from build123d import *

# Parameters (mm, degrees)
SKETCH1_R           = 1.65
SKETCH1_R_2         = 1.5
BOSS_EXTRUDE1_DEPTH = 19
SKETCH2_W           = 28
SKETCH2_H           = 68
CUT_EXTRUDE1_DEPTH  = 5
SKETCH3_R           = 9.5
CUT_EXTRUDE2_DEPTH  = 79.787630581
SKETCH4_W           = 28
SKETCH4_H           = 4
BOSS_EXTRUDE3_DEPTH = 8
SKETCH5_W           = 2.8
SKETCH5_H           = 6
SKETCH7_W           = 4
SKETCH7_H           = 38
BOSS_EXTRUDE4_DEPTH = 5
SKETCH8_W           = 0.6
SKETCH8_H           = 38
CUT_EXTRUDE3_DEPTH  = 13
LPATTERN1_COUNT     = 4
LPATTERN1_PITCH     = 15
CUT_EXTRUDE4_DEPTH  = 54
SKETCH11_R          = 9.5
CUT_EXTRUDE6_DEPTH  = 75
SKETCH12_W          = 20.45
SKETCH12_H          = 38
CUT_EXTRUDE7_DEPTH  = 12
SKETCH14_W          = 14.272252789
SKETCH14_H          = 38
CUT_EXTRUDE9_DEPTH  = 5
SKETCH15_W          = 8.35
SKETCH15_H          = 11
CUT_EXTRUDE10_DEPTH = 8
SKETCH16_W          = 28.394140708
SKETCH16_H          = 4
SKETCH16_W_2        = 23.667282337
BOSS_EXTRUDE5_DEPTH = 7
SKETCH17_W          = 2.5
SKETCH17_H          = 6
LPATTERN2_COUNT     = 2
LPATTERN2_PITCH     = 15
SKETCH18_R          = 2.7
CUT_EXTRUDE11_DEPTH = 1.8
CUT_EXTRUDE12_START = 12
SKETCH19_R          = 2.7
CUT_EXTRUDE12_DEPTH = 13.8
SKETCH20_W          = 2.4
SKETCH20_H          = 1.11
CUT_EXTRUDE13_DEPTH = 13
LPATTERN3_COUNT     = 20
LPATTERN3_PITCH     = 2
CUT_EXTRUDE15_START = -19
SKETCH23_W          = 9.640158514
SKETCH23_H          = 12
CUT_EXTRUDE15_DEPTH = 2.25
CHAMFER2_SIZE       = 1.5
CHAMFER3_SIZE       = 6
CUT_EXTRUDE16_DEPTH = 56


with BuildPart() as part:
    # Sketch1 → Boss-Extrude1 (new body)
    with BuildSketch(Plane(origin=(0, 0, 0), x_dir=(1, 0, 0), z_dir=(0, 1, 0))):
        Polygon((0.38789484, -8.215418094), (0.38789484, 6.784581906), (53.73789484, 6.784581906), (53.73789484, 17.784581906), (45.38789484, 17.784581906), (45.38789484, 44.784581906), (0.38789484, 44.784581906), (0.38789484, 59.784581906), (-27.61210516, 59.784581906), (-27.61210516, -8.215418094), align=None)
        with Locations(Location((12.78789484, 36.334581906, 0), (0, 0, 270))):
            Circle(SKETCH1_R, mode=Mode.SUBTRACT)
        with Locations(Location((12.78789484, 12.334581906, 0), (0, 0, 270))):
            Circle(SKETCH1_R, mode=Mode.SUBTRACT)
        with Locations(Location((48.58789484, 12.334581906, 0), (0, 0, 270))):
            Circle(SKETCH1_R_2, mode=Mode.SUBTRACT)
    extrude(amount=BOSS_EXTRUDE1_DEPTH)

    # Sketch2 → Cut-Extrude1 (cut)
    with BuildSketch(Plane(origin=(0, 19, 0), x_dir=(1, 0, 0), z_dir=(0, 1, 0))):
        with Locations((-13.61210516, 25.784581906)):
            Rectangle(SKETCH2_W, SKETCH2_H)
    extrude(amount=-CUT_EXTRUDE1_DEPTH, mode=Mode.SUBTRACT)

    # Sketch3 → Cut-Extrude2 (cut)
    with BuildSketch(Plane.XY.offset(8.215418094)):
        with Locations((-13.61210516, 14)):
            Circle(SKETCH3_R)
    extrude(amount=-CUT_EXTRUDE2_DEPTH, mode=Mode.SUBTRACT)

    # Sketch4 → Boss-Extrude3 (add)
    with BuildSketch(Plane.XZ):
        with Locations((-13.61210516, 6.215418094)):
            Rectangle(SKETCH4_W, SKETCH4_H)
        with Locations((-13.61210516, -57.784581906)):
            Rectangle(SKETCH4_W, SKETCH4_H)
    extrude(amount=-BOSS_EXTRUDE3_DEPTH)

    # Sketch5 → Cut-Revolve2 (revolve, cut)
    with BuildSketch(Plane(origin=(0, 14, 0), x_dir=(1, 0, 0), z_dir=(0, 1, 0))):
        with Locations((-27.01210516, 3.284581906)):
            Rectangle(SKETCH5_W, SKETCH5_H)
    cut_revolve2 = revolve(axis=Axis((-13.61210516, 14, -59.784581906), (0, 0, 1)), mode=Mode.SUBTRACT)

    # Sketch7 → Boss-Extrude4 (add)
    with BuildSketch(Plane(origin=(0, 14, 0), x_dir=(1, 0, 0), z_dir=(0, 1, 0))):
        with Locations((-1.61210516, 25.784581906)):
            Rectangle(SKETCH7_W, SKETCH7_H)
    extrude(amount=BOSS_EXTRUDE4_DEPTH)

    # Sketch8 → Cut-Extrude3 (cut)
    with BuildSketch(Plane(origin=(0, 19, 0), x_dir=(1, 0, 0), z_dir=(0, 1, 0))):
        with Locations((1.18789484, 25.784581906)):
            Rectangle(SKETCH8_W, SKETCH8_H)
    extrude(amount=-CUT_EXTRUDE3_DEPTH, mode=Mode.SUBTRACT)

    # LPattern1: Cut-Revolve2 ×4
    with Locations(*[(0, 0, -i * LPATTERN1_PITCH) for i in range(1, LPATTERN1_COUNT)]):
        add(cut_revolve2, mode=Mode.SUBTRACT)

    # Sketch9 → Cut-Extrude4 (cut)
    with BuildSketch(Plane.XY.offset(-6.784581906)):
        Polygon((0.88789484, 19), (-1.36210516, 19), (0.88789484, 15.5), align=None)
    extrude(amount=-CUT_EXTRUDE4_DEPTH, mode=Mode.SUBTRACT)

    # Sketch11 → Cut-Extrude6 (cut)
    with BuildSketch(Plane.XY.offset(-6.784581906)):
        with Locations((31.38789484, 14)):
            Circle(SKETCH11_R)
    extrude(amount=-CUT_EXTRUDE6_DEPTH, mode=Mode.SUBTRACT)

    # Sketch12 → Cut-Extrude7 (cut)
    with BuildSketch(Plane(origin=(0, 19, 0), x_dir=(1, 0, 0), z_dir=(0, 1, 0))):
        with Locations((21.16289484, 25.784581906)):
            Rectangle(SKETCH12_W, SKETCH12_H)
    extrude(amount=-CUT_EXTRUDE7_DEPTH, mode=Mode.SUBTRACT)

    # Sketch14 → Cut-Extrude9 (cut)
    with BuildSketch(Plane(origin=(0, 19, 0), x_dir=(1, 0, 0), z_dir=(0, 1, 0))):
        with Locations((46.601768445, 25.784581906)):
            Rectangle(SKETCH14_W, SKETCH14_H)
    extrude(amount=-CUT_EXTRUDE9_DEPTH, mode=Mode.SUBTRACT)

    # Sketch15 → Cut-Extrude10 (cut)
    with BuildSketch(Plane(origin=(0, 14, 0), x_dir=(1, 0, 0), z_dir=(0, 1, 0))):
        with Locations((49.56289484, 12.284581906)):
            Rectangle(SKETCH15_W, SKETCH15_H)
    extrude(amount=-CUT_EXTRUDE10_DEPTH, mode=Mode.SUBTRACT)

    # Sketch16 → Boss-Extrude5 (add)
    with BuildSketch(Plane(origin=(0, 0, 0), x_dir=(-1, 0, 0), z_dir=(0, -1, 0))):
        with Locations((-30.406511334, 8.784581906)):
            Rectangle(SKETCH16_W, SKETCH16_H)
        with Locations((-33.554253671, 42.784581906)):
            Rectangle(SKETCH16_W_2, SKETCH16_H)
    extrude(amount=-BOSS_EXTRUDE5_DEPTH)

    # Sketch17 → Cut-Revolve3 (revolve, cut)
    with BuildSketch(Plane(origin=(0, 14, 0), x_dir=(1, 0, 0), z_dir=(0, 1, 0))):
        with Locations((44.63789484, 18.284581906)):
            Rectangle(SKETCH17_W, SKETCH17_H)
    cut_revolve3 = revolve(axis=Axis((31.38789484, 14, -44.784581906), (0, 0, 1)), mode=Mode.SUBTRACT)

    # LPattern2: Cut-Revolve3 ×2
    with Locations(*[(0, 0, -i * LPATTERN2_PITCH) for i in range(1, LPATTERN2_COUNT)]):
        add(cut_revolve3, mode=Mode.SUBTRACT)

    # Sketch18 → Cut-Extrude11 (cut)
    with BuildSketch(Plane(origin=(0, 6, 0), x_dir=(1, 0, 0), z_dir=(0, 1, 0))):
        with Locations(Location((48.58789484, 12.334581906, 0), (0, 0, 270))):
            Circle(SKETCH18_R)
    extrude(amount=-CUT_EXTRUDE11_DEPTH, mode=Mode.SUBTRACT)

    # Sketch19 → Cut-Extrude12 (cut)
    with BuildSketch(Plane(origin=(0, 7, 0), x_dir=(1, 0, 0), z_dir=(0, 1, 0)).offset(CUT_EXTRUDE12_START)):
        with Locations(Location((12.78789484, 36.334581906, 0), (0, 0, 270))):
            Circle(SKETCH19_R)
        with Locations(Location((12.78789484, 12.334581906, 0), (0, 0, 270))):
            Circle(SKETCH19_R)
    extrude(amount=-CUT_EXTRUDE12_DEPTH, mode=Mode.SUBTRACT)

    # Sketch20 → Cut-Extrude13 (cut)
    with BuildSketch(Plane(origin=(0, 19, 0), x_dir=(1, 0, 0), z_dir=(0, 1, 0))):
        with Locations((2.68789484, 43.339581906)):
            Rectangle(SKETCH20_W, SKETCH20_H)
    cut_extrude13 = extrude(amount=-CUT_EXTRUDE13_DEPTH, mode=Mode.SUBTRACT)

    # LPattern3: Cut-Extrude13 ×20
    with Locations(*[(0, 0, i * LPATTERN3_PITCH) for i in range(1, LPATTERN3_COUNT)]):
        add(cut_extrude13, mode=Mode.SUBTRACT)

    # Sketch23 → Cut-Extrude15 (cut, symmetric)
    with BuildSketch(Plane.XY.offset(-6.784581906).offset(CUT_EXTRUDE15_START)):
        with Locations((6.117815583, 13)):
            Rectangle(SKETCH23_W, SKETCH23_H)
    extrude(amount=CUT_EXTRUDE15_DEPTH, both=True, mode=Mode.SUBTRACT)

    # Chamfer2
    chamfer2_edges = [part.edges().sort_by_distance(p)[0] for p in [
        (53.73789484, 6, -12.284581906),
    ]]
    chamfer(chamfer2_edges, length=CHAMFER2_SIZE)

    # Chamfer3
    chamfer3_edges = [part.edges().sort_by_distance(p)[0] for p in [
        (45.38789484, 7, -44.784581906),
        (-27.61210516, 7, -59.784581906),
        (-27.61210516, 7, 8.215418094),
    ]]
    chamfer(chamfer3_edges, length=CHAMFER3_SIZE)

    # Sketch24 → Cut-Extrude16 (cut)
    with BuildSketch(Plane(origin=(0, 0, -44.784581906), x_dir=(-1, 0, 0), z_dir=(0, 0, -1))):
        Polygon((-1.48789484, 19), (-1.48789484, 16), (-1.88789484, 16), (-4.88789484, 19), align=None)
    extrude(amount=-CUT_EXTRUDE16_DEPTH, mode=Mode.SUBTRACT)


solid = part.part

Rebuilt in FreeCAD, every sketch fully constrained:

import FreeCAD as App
import Part
import Sketcher
from FreeCAD import Vector
Q = App.Units.Quantity


def edges_at(feature, points):
    """Names of the edges that pass closest to the given points."""
    edges = feature.Shape.Edges
    near = lambda p: min(range(len(edges)), key=lambda i: edges[i].distToShape(Part.Vertex(*p))[0])
    return sorted({f"Edge{near(p) + 1}" for p in points})


def add_polygon(sketch, points):
    """Adds a closed chain of lines whose ends are joined by coincident constraints."""
    first, n = sketch.GeometryCount, len(points)
    for a, b in zip(points, points[1:] + points[:1]):
        sketch.addGeometry(Part.LineSegment(App.Vector(*a, 0), App.Vector(*b, 0)), False)
    for i in range(n):
        sketch.addConstraint(Sketcher.Constraint("Coincident", first + i, 2, first + (i + 1) % n, 1))

doc = App.newDocument("Part")
body = doc.addObject("PartDesign::Body", "Body")

# Sketch on XZ plane
sketch1 = doc.addObject("Sketcher::SketchObject", "Sketch")
body.addObject(sketch1)
sketch1.AttachmentSupport = (doc.XZ_Plane, [""])
sketch1.MapMode = "FlatFace"
add_polygon(sketch1, [(0.4, 8.2), (0.4, -6.8), (53.7, -6.8), (53.7, -17.8), (45.4, -17.8), (45.4, -44.8), (0.4, -44.8), (0.4, -59.8), (-27.6, -59.8), (-27.6, 8.2)])  # lines 0-9
sketch1.addGeometry(Part.Circle(Vector(12.8, -12.3, 0), Vector(0, 0, 1), 1.6), False)  # 10
sketch1.addGeometry(Part.Circle(Vector(48.6, -12.3, 0), Vector(0, 0, 1), 1.5), False)  # 11
sketch1.addGeometry(Part.Circle(Vector(12.8, -36.3, 0), Vector(0, 0, 1), 1.6), False)  # 12
sketch1.addConstraint([
    Sketcher.Constraint("Vertical", 0),
    Sketcher.Constraint("Horizontal", 1),
    Sketcher.Constraint("Vertical", 2),
    Sketcher.Constraint("Horizontal", 3),
    Sketcher.Constraint("Vertical", 4),
    Sketcher.Constraint("Horizontal", 5),
    Sketcher.Constraint("Vertical", 6),
    Sketcher.Constraint("Horizontal", 7),
    Sketcher.Constraint("Vertical", 8),
    Sketcher.Constraint("Horizontal", 9),
    Sketcher.Constraint("Equal", 10, 12),
    Sketcher.Constraint("Horizontal", 10, 3, 11, 3),
    Sketcher.Constraint("Vertical", 10, 3, 12, 3),
    Sketcher.Constraint("Vertical", 0, 2, 5, 2),
    Sketcher.Constraint("Equal", 0, 6),
    Sketcher.Constraint("Diameter", 11, Q("3 mm")),
    Sketcher.Constraint("Diameter", 10, Q("3.3 mm")),
    Sketcher.Constraint("DistanceX", 5, 2, 5, 1, Q("45 mm")),
    Sketcher.Constraint("DistanceX", 7, 2, 7, 1, Q("28 mm")),
    Sketcher.Constraint("DistanceY", 0, 2, 0, 1, Q("15 mm")),
    Sketcher.Constraint("DistanceY", 2, 2, 2, 1, Q("11 mm")),
    Sketcher.Constraint("DistanceY", 4, 2, 4, 1, Q("27 mm")),
    Sketcher.Constraint("DistanceY", 12, 3, 10, 3, Q("24 mm")),
    Sketcher.Constraint("DistanceX", 1, 1, 1, 2, Q("53.35 mm")),
    Sketcher.Constraint("DistanceX", 10, 3, 11, 3, Q("35.8 mm")),
    Sketcher.Constraint("DistanceX", 0, 2, 10, 3, Q("12.4 mm")),
    Sketcher.Constraint("DistanceY", 10, 3, 0, 2, Q("5.55 mm")),
    Sketcher.Constraint("DistanceY", 10, 3, -1, 1, Q("12.334582 mm")),
    Sketcher.Constraint("DistanceX", -1, 1, 10, 3, Q("12.787895 mm")),
])
pad1 = doc.addObject("PartDesign::Pad", "Pad")
body.addObject(pad1)
pad1.Profile = sketch1
pad1.Length = 19
pad1.Reversed = True

# Sketch on XZ plane
sketch2 = doc.addObject("Sketcher::SketchObject", "Sketch001")
body.addObject(sketch2)
sketch2.AttachmentSupport = (doc.XZ_Plane, [""])
sketch2.MapMode = "FlatFace"
sketch2.AttachmentOffset = App.Placement(Vector(0, 0, -19), App.Rotation())
add_polygon(sketch2, [(-28, -60), (-28, 8), (0, 8), (0, -60)])  # lines 0-3
sketch2.addConstraint([
    Sketcher.Constraint("Vertical", 0),
    Sketcher.Constraint("Horizontal", 1),
    Sketcher.Constraint("Vertical", 2),
    Sketcher.Constraint("Horizontal", 3),
    Sketcher.Constraint("DistanceX", 1, 1, 1, 2, Q("28 mm")),
    Sketcher.Constraint("DistanceY", 0, 1, 0, 2, Q("68 mm")),
    Sketcher.Constraint("DistanceY", -1, 1, 0, 2, Q("8.215418 mm")),
    Sketcher.Constraint("DistanceX", 0, 2, -1, 1, Q("27.612105 mm")),
])
pocket1 = doc.addObject("PartDesign::Pocket", "Pocket")
body.addObject(pocket1)
pocket1.Profile = sketch2
pocket1.Length = 5
pocket1.Reversed = True

# Sketch on XY plane
sketch3 = doc.addObject("Sketcher::SketchObject", "Sketch002")
body.addObject(sketch3)
sketch3.AttachmentSupport = (doc.XY_Plane, [""])
sketch3.MapMode = "FlatFace"
sketch3.AttachmentOffset = App.Placement(Vector(0, 0, 8.215418), App.Rotation())
sketch3.addGeometry(Part.Circle(Vector(-14, 14, 0), Vector(0, 0, 1), 10), False)
sketch3.addConstraint([
    Sketcher.Constraint("Diameter", 0, Q("19 mm")),
    Sketcher.Constraint("DistanceY", -1, 1, 0, 3, Q("14 mm")),
    Sketcher.Constraint("DistanceX", 0, 3, -1, 1, Q("13.612105 mm")),
])
pocket2 = doc.addObject("PartDesign::Pocket", "Pocket001")
body.addObject(pocket2)
pocket2.Profile = sketch3
pocket2.Length = 79.787631

# Sketch on XZ plane
sketch4 = doc.addObject("Sketcher::SketchObject", "Sketch003")
body.addObject(sketch4)
sketch4.AttachmentSupport = (doc.XZ_Plane, [""])
sketch4.MapMode = "FlatFace"
add_polygon(sketch4, [(-27.6, 8.2), (-27.6, 4.2), (0.4, 4.2), (0.4, 8.2)])  # lines 0-3
add_polygon(sketch4, [(-27.6, -55.8), (-27.6, -59.8), (0.4, -59.8), (0.4, -55.8)])  # lines 4-7
sketch4.addConstraint([
    Sketcher.Constraint("Vertical", 0),
    Sketcher.Constraint("Horizontal", 1),
    Sketcher.Constraint("Vertical", 2),
    Sketcher.Constraint("Horizontal", 3),
    Sketcher.Constraint("Vertical", 4),
    Sketcher.Constraint("Horizontal", 5),
    Sketcher.Constraint("Vertical", 6),
    Sketcher.Constraint("Horizontal", 7),
    Sketcher.Constraint("Vertical", 3, 2, 4, 2),
    Sketcher.Constraint("Vertical", 2, 2, 5, 2),
    Sketcher.Constraint("Equal", 2, 4),
    Sketcher.Constraint("DistanceX", 1, 1, 1, 2, Q("28 mm")),
    Sketcher.Constraint("DistanceY", 0, 2, 0, 1, Q("4 mm")),
    Sketcher.Constraint("DistanceY", 4, 2, 0, 2, Q("64 mm")),
    Sketcher.Constraint("DistanceY", -1, 1, 0, 2, Q("4.215418 mm")),
    Sketcher.Constraint("DistanceX", 0, 2, -1, 1, Q("27.612105 mm")),
])
pad2 = doc.addObject("PartDesign::Pad", "Pad001")
body.addObject(pad2)
pad2.Profile = sketch4
pad2.Length = 8
pad2.Reversed = True

# Sketch on XZ plane
sketch5 = doc.addObject("Sketcher::SketchObject", "Sketch004")
body.addObject(sketch5)
sketch5.AttachmentSupport = (doc.XZ_Plane, [""])
sketch5.MapMode = "FlatFace"
sketch5.AttachmentOffset = App.Placement(Vector(0, 0, -14), App.Rotation())
add_polygon(sketch5, [(-28.4, -6.3), (-28.4, -0.3), (-25.6, -0.3), (-25.6, -6.3)])  # lines 0-3
sketch5.addGeometry(Part.LineSegment(Vector(-13.6, -6.3, 0), Vector(-13.6, -0.3, 0)), True)  # axis
sketch5.addConstraint([
    Sketcher.Constraint("Vertical", 0),
    Sketcher.Constraint("Horizontal", 1),
    Sketcher.Constraint("Vertical", 2),
    Sketcher.Constraint("Horizontal", 3),
    Sketcher.Constraint("Vertical", 4),
    Sketcher.Constraint("Horizontal", 3, 2, 4, 1),
    Sketcher.Constraint("Horizontal", 1, 2, 4, 2),
    Sketcher.Constraint("DistanceY", 0, 1, 0, 2, Q("6 mm")),
    Sketcher.Constraint("DistanceX", 1, 1, 1, 2, Q("2.8 mm")),
    Sketcher.Constraint("DistanceX", 2, 2, 4, 1, Q("12 mm")),
    Sketcher.Constraint("DistanceY", 0, 2, -1, 1, Q("0.284582 mm")),
    Sketcher.Constraint("DistanceX", 0, 2, -1, 1, Q("28.412105 mm")),
])
groove = doc.addObject("PartDesign::Groove", "Groove")
body.addObject(groove)
groove.Profile = sketch5
groove.ReferenceAxis = (sketch5, ["Axis0"])
groove.Angle = 360

# Sketch on XZ plane
sketch6 = doc.addObject("Sketcher::SketchObject", "Sketch005")
body.addObject(sketch6)
sketch6.AttachmentSupport = (doc.XZ_Plane, [""])
sketch6.MapMode = "FlatFace"
sketch6.AttachmentOffset = App.Placement(Vector(0, 0, -14), App.Rotation())
add_polygon(sketch6, [(-3.6, -44.8), (-3.6, -6.8), (0.4, -6.8), (0.4, -44.8)])  # lines 0-3
sketch6.addConstraint([
    Sketcher.Constraint("Vertical", 0),
    Sketcher.Constraint("Horizontal", 1),
    Sketcher.Constraint("Vertical", 2),
    Sketcher.Constraint("Horizontal", 3),
    Sketcher.Constraint("DistanceX", 1, 1, 1, 2, Q("4 mm")),
    Sketcher.Constraint("DistanceY", 0, 1, 0, 2, Q("38 mm")),
    Sketcher.Constraint("DistanceY", 0, 2, -1, 1, Q("6.784582 mm")),
    Sketcher.Constraint("DistanceX", 0, 2, -1, 1, Q("3.612105 mm")),
])
pad3 = doc.addObject("PartDesign::Pad", "Pad002")
body.addObject(pad3)
pad3.Profile = sketch6
pad3.Length = 5
pad3.Reversed = True

# Sketch on XZ plane
sketch7 = doc.addObject("Sketcher::SketchObject", "Sketch006")
body.addObject(sketch7)
sketch7.AttachmentSupport = (doc.XZ_Plane, [""])
sketch7.MapMode = "FlatFace"
sketch7.AttachmentOffset = App.Placement(Vector(0, 0, -19), App.Rotation())
add_polygon(sketch7, [(0.9, -44.8), (0.9, -6.8), (1.5, -6.8), (1.5, -44.8)])  # lines 0-3
sketch7.addConstraint([
    Sketcher.Constraint("Vertical", 0),
    Sketcher.Constraint("Horizontal", 1),
    Sketcher.Constraint("Vertical", 2),
    Sketcher.Constraint("Horizontal", 3),
    Sketcher.Constraint("DistanceY", 0, 1, 0, 2, Q("38 mm")),
    Sketcher.Constraint("DistanceX", 1, 1, 1, 2, Q("0.6 mm")),
    Sketcher.Constraint("DistanceY", 0, 2, -1, 1, Q("6.784582 mm")),
    Sketcher.Constraint("DistanceX", -1, 1, 0, 2, Q("0.887895 mm")),
])
pocket3 = doc.addObject("PartDesign::Pocket", "Pocket002")
body.addObject(pocket3)
pocket3.Profile = sketch7
pocket3.Length = 13
pocket3.Reversed = True
doc.recompute()

linearpattern = doc.addObject("PartDesign::LinearPattern", "LinearPattern")
body.addObject(linearpattern)
linearpattern.Originals = [groove]
linearpattern.Direction = (doc.Z_Axis, [""])
linearpattern.Mode = "offset"
linearpattern.Offset = 15
linearpattern.Occurrences = 4
linearpattern.Reversed = True
body.Tip = linearpattern

# Sketch on XY plane
sketch8 = doc.addObject("Sketcher::SketchObject", "Sketch007")
body.addObject(sketch8)
sketch8.AttachmentSupport = (doc.XY_Plane, [""])
sketch8.MapMode = "FlatFace"
sketch8.AttachmentOffset = App.Placement(Vector(0, 0, -6.784582), App.Rotation())
add_polygon(sketch8, [(0.9, 19), (-1.4, 19), (0.9, 15.5)])  # lines 0-2
sketch8.addConstraint([
    Sketcher.Constraint("Horizontal", 0),
    Sketcher.Constraint("Vertical", 2),
    Sketcher.Constraint("DistanceY", 2, 1, 2, 2, Q("3.5 mm")),
    Sketcher.Constraint("DistanceY", -1, 1, 0, 2, Q("19 mm")),
    Sketcher.Constraint("DistanceX", 0, 2, 0, 1, Q("2.25 mm")),
    Sketcher.Constraint("DistanceX", 0, 2, -1, 1, Q("1.362105 mm")),
])
pocket4 = doc.addObject("PartDesign::Pocket", "Pocket003")
body.addObject(pocket4)
pocket4.Profile = sketch8
pocket4.Length = 54

# Sketch on XY plane
sketch9 = doc.addObject("Sketcher::SketchObject", "Sketch008")
body.addObject(sketch9)
sketch9.AttachmentSupport = (doc.XY_Plane, [""])
sketch9.MapMode = "FlatFace"
sketch9.AttachmentOffset = App.Placement(Vector(0, 0, -6.784582), App.Rotation())
sketch9.addGeometry(Part.Circle(Vector(31, 14, 0), Vector(0, 0, 1), 10), False)
sketch9.addConstraint([
    Sketcher.Constraint("Diameter", 0, Q("19 mm")),
    Sketcher.Constraint("DistanceY", -1, 1, 0, 3, Q("14 mm")),
    Sketcher.Constraint("DistanceX", -1, 1, 0, 3, Q("31.387895 mm")),
])
pocket5 = doc.addObject("PartDesign::Pocket", "Pocket004")
body.addObject(pocket5)
pocket5.Profile = sketch9
pocket5.Length = 75

# Sketch on XZ plane
sketch10 = doc.addObject("Sketcher::SketchObject", "Sketch009")
body.addObject(sketch10)
sketch10.AttachmentSupport = (doc.XZ_Plane, [""])
sketch10.MapMode = "FlatFace"
sketch10.AttachmentOffset = App.Placement(Vector(0, 0, -19), App.Rotation())
add_polygon(sketch10, [(11, -45), (11, -7), (31, -7), (31, -45)])  # lines 0-3
sketch10.addConstraint([
    Sketcher.Constraint("Vertical", 0),
    Sketcher.Constraint("Horizontal", 1),
    Sketcher.Constraint("Vertical", 2),
    Sketcher.Constraint("Horizontal", 3),
    Sketcher.Constraint("DistanceY", 0, 1, 0, 2, Q("38 mm")),
    Sketcher.Constraint("DistanceX", 1, 1, 1, 2, Q("20.45 mm")),
    Sketcher.Constraint("DistanceY", 0, 2, -1, 1, Q("6.784582 mm")),
    Sketcher.Constraint("DistanceX", -1, 1, 0, 2, Q("10.937895 mm")),
])
pocket6 = doc.addObject("PartDesign::Pocket", "Pocket005")
body.addObject(pocket6)
pocket6.Profile = sketch10
pocket6.Length = 12
pocket6.Reversed = True

# Sketch on XZ plane
sketch11 = doc.addObject("Sketcher::SketchObject", "Sketch010")
body.addObject(sketch11)
sketch11.AttachmentSupport = (doc.XZ_Plane, [""])
sketch11.MapMode = "FlatFace"
sketch11.AttachmentOffset = App.Placement(Vector(0, 0, -19), App.Rotation())
add_polygon(sketch11, [(39, -45), (39, -7), (54, -7), (54, -45)])  # lines 0-3
sketch11.addConstraint([
    Sketcher.Constraint("Vertical", 0),
    Sketcher.Constraint("Horizontal", 1),
    Sketcher.Constraint("Vertical", 2),
    Sketcher.Constraint("Horizontal", 3),
    Sketcher.Constraint("DistanceY", 0, 1, 0, 2, Q("38 mm")),
    Sketcher.Constraint("DistanceX", 1, 1, 1, 2, Q("14.272253 mm")),
    Sketcher.Constraint("DistanceY", 0, 2, -1, 1, Q("6.784582 mm")),
    Sketcher.Constraint("DistanceX", -1, 1, 0, 2, Q("39.465642 mm")),
])
pocket7 = doc.addObject("PartDesign::Pocket", "Pocket006")
body.addObject(pocket7)
pocket7.Profile = sketch11
pocket7.Length = 5
pocket7.Reversed = True

# Sketch on XZ plane
sketch12 = doc.addObject("Sketcher::SketchObject", "Sketch011")
body.addObject(sketch12)
sketch12.AttachmentSupport = (doc.XZ_Plane, [""])
sketch12.MapMode = "FlatFace"
sketch12.AttachmentOffset = App.Placement(Vector(0, 0, -14), App.Rotation())
add_polygon(sketch12, [(45, -18), (45, -7), (54, -7), (54, -18)])  # lines 0-3
sketch12.addConstraint([
    Sketcher.Constraint("Vertical", 0),
    Sketcher.Constraint("Horizontal", 1),
    Sketcher.Constraint("Vertical", 2),
    Sketcher.Constraint("Horizontal", 3),
    Sketcher.Constraint("DistanceY", 0, 1, 0, 2, Q("11 mm")),
    Sketcher.Constraint("DistanceX", 1, 1, 1, 2, Q("8.35 mm")),
    Sketcher.Constraint("DistanceY", 0, 2, -1, 1, Q("6.784582 mm")),
    Sketcher.Constraint("DistanceX", -1, 1, 0, 2, Q("45.387895 mm")),
])
pocket8 = doc.addObject("PartDesign::Pocket", "Pocket007")
body.addObject(pocket8)
pocket8.Profile = sketch12
pocket8.Length = 8
pocket8.Reversed = True

# Sketch on XZ plane
sketch13 = doc.addObject("Sketcher::SketchObject", "Sketch012")
body.addObject(sketch13)
sketch13.AttachmentSupport = (doc.XZ_Plane, [""])
sketch13.MapMode = "FlatFace"
add_polygon(sketch13, [(44.6, -10.8), (44.6, -6.8), (16.2, -6.8), (16.2, -10.8)])  # lines 0-3
add_polygon(sketch13, [(45.4, -44.8), (45.4, -40.8), (21.7, -40.8), (21.7, -44.8)])  # lines 4-7
sketch13.addConstraint([
    Sketcher.Constraint("Vertical", 0),
    Sketcher.Constraint("Horizontal", 1),
    Sketcher.Constraint("Vertical", 2),
    Sketcher.Constraint("Horizontal", 3),
    Sketcher.Constraint("Vertical", 4),
    Sketcher.Constraint("Horizontal", 5),
    Sketcher.Constraint("Vertical", 6),
    Sketcher.Constraint("Horizontal", 7),
    Sketcher.Constraint("Equal", 2, 4),
    Sketcher.Constraint("DistanceY", 0, 1, 0, 2, Q("4 mm")),
    Sketcher.Constraint("DistanceY", 4, 2, 3, 2, Q("30 mm")),
    Sketcher.Constraint("DistanceX", 1, 2, 1, 1, Q("28.394141 mm")),
    Sketcher.Constraint("DistanceX", 5, 2, 5, 1, Q("23.667282 mm")),
    Sketcher.Constraint("DistanceX", -1, 1, 0, 2, Q("44.603582 mm")),
    Sketcher.Constraint("DistanceY", 0, 2, -1, 1, Q("6.784582 mm")),
    Sketcher.Constraint("DistanceX", 2, 2, 5, 2, Q("5.511172 mm")),
])
pad4 = doc.addObject("PartDesign::Pad", "Pad003")
body.addObject(pad4)
pad4.Profile = sketch13
pad4.Length = 7
pad4.Reversed = True

# Sketch on XZ plane
sketch14 = doc.addObject("Sketcher::SketchObject", "Sketch013")
body.addObject(sketch14)
sketch14.AttachmentSupport = (doc.XZ_Plane, [""])
sketch14.MapMode = "FlatFace"
sketch14.AttachmentOffset = App.Placement(Vector(0, 0, -14), App.Rotation())
add_polygon(sketch14, [(43.4, -21.3), (43.4, -15.3), (45.9, -15.3), (45.9, -21.3)])  # lines 0-3
sketch14.addGeometry(Part.LineSegment(Vector(31.4, -21.3, 0), Vector(31.4, -15.3, 0)), True)  # axis
sketch14.addConstraint([
    Sketcher.Constraint("Vertical", 0),
    Sketcher.Constraint("Horizontal", 1),
    Sketcher.Constraint("Vertical", 2),
    Sketcher.Constraint("Horizontal", 3),
    Sketcher.Constraint("Vertical", 4),
    Sketcher.Constraint("Horizontal", 3, 2, 4, 1),
    Sketcher.Constraint("Horizontal", 1, 2, 4, 2),
    Sketcher.Constraint("DistanceY", 0, 1, 0, 2, Q("6 mm")),
    Sketcher.Constraint("DistanceX", 1, 1, 1, 2, Q("2.5 mm")),
    Sketcher.Constraint("DistanceX", 4, 1, 3, 2, Q("12 mm")),
    Sketcher.Constraint("DistanceY", 0, 2, -1, 1, Q("15.284582 mm")),
    Sketcher.Constraint("DistanceX", -1, 1, 0, 2, Q("43.387895 mm")),
])
groove2 = doc.addObject("PartDesign::Groove", "Groove001")
body.addObject(groove2)
groove2.Profile = sketch14
groove2.ReferenceAxis = (sketch14, ["Axis0"])
groove2.Angle = 360
doc.recompute()

linearpattern2 = doc.addObject("PartDesign::LinearPattern", "LinearPattern001")
body.addObject(linearpattern2)
linearpattern2.Originals = [groove2]
linearpattern2.Direction = (doc.Z_Axis, [""])
linearpattern2.Mode = "offset"
linearpattern2.Offset = 15
linearpattern2.Occurrences = 2
linearpattern2.Reversed = True
body.Tip = linearpattern2

# Sketch on XZ plane
sketch15 = doc.addObject("Sketcher::SketchObject", "Sketch014")
body.addObject(sketch15)
sketch15.AttachmentSupport = (doc.XZ_Plane, [""])
sketch15.MapMode = "FlatFace"
sketch15.AttachmentOffset = App.Placement(Vector(0, 0, -6), App.Rotation())
sketch15.addGeometry(Part.Circle(Vector(48.6, -12.3, 0), Vector(0, 0, 1), 2.7), False)
sketch15.addConstraint([
    Sketcher.Constraint("Diameter", 0, Q("5.4 mm")),
    Sketcher.Constraint("DistanceY", 0, 3, -1, 1, Q("12.334582 mm")),
    Sketcher.Constraint("DistanceX", -1, 1, 0, 3, Q("48.587895 mm")),
])
pocket9 = doc.addObject("PartDesign::Pocket", "Pocket008")
body.addObject(pocket9)
pocket9.Profile = sketch15
pocket9.Length = 1.8
pocket9.Reversed = True

# Sketch on XZ plane
sketch16 = doc.addObject("Sketcher::SketchObject", "Sketch015")
body.addObject(sketch16)
sketch16.AttachmentSupport = (doc.XZ_Plane, [""])
sketch16.MapMode = "FlatFace"
sketch16.AttachmentOffset = App.Placement(Vector(0, 0, -19), App.Rotation())
sketch16.addGeometry([
    Part.Circle(Vector(12.8, -36.3, 0), Vector(0, 0, 1), 2.7),
    Part.Circle(Vector(12.8, -12.3, 0), Vector(0, 0, 1), 2.7),
], False)
sketch16.addConstraint([
    Sketcher.Constraint("Equal", 0, 1),
    Sketcher.Constraint("Vertical", 0, 3, 1, 3),
    Sketcher.Constraint("Diameter", 0, Q("5.4 mm")),
    Sketcher.Constraint("DistanceY", 0, 3, 1, 3, Q("24 mm")),
    Sketcher.Constraint("DistanceY", 0, 3, -1, 1, Q("36.334582 mm")),
    Sketcher.Constraint("DistanceX", -1, 1, 0, 3, Q("12.787895 mm")),
])
pocket10 = doc.addObject("PartDesign::Pocket", "Pocket009")
body.addObject(pocket10)
pocket10.Profile = sketch16
pocket10.Length = 13.8
pocket10.Reversed = True

# Sketch on XZ plane
sketch17 = doc.addObject("Sketcher::SketchObject", "Sketch016")
body.addObject(sketch17)
sketch17.AttachmentSupport = (doc.XZ_Plane, [""])
sketch17.MapMode = "FlatFace"
sketch17.AttachmentOffset = App.Placement(Vector(0, 0, -19), App.Rotation())
add_polygon(sketch17, [(1.5, -43.9), (1.5, -42.8), (3.9, -42.8), (3.9, -43.9)])  # lines 0-3
sketch17.addConstraint([
    Sketcher.Constraint("Vertical", 0),
    Sketcher.Constraint("Horizontal", 1),
    Sketcher.Constraint("Vertical", 2),
    Sketcher.Constraint("Horizontal", 3),
    Sketcher.Constraint("DistanceX", 1, 1, 1, 2, Q("2.4 mm")),
    Sketcher.Constraint("DistanceY", 0, 1, 0, 2, Q("1.11 mm")),
    Sketcher.Constraint("DistanceY", 0, 2, -1, 1, Q("42.784582 mm")),
    Sketcher.Constraint("DistanceX", -1, 1, 0, 2, Q("1.487895 mm")),
])
pocket11 = doc.addObject("PartDesign::Pocket", "Pocket010")
body.addObject(pocket11)
pocket11.Profile = sketch17
pocket11.Length = 13
pocket11.Reversed = True
doc.recompute()

linearpattern3 = doc.addObject("PartDesign::LinearPattern", "LinearPattern002")
body.addObject(linearpattern3)
linearpattern3.Originals = [pocket11]
linearpattern3.Direction = (doc.Z_Axis, [""])
linearpattern3.Mode = "offset"
linearpattern3.Offset = 2
linearpattern3.Occurrences = 20
body.Tip = linearpattern3

# Sketch on XY plane
sketch18 = doc.addObject("Sketcher::SketchObject", "Sketch017")
body.addObject(sketch18)
sketch18.AttachmentSupport = (doc.XY_Plane, [""])
sketch18.MapMode = "FlatFace"
sketch18.AttachmentOffset = App.Placement(Vector(0, 0, -25.784582), App.Rotation())
add_polygon(sketch18, [(1, 19), (1, 7), (11, 7), (11, 19)])  # lines 0-3
sketch18.addConstraint([
    Sketcher.Constraint("Vertical", 0),
    Sketcher.Constraint("Horizontal", 1),
    Sketcher.Constraint("Vertical", 2),
    Sketcher.Constraint("Horizontal", 3),
    Sketcher.Constraint("DistanceY", 0, 2, 0, 1, Q("12 mm")),
    Sketcher.Constraint("DistanceY", -1, 1, 0, 2, Q("7 mm")),
    Sketcher.Constraint("DistanceX", 1, 1, 1, 2, Q("9.640159 mm")),
    Sketcher.Constraint("DistanceX", -1, 1, 0, 2, Q("1.297736 mm")),
])
pocket12 = doc.addObject("PartDesign::Pocket", "Pocket011")
body.addObject(pocket12)
pocket12.Profile = sketch18
pocket12.Length = 4.5
pocket12.Midplane = True
doc.recompute()

chamfer = doc.addObject("PartDesign::Chamfer", "Chamfer")
body.addObject(chamfer)
chamfer.Base = (pocket12, edges_at(pocket12, [(53.738, 6, -12.285)]))
chamfer.Size = 1.5
doc.recompute()

chamfer2 = doc.addObject("PartDesign::Chamfer", "Chamfer001")
body.addObject(chamfer2)
chamfer2.Base = (chamfer, edges_at(chamfer, [(45.388, 7, -44.785), (-27.612, 7, -59.785), (-27.612, 7, 8.215)]))
chamfer2.Size = 6

# Sketch on XY plane
sketch19 = doc.addObject("Sketcher::SketchObject", "Sketch018")
body.addObject(sketch19)
sketch19.AttachmentSupport = (doc.XY_Plane, [""])
sketch19.MapMode = "FlatFace"
sketch19.AttachmentOffset = App.Placement(Vector(0, 0, -44.784582), App.Rotation())
add_polygon(sketch19, [(1.49, 16), (1.49, 19), (4.89, 19), (1.89, 16)])  # lines 0-3
sketch19.addConstraint([
    Sketcher.Constraint("Vertical", 0),
    Sketcher.Constraint("Horizontal", 1),
    Sketcher.Constraint("Horizontal", 3),
    Sketcher.Constraint("DistanceY", 0, 1, 0, 2, Q("3 mm")),
    Sketcher.Constraint("Angle", 2, Q("-135 deg")),
    Sketcher.Constraint("DistanceX", 1, 1, 1, 2, Q("3.4 mm")),
    Sketcher.Constraint("DistanceY", -1, 1, 0, 2, Q("19 mm")),
    Sketcher.Constraint("DistanceX", -1, 1, 0, 2, Q("1.487895 mm")),
])
pocket13 = doc.addObject("PartDesign::Pocket", "Pocket012")
body.addObject(pocket13)
pocket13.Profile = sketch19
pocket13.Length = 56
pocket13.Reversed = True

doc.recompute()
